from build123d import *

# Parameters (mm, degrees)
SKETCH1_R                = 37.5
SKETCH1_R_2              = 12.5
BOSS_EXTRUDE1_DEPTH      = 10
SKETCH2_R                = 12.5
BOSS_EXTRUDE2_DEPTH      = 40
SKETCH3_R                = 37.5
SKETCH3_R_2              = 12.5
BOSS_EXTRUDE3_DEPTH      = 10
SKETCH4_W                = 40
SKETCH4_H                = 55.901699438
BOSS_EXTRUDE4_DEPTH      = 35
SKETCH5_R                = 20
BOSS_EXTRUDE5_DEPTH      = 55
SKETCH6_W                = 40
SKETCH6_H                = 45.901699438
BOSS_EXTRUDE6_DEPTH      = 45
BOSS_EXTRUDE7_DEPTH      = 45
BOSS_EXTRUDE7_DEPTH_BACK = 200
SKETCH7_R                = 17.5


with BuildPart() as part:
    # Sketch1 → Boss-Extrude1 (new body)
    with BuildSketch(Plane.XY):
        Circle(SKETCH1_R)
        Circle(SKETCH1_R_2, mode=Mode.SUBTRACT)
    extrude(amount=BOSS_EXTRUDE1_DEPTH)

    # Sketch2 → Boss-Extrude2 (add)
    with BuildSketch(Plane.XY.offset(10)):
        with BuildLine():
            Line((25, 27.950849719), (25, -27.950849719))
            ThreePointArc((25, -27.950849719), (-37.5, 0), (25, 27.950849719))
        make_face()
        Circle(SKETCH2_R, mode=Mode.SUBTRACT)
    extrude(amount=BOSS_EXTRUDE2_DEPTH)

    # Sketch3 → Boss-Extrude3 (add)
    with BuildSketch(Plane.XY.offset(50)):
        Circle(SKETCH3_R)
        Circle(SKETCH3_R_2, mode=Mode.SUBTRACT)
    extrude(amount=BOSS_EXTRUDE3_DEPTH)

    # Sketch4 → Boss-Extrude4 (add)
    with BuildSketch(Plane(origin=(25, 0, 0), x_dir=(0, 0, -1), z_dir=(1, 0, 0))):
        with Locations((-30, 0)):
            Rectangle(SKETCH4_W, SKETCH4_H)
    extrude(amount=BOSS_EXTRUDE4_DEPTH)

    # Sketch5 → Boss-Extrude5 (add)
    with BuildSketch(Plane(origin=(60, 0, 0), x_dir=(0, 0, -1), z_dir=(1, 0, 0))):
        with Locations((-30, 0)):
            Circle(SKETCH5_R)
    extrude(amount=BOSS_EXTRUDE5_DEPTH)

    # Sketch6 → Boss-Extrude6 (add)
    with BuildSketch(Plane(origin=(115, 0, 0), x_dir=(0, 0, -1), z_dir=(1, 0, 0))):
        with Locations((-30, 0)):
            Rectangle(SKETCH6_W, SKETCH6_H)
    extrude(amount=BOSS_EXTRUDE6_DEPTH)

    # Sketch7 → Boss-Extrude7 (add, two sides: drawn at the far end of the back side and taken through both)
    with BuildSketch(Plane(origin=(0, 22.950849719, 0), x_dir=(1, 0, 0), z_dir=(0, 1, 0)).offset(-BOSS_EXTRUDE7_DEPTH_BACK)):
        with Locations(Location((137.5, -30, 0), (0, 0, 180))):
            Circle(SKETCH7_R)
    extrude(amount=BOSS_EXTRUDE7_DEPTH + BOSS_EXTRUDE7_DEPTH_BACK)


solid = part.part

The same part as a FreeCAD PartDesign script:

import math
import FreeCAD as App
import Part
import Sketcher
from FreeCAD import Vector
Q = App.Units.Quantity


def add_polygon(sketch, points):
    """Adds a closed chain of lines whose ends are joined by coincident constraints."""
    first, n = sketch.GeometryCount, len(points)
    for a, b in zip(points, points[1:] + points[:1]):
        sketch.addGeometry(Part.LineSegment(App.Vector(*a, 0), App.Vector(*b, 0)), False)
    for i in range(n):
        sketch.addConstraint(Sketcher.Constraint("Coincident", first + i, 2, first + (i + 1) % n, 1))

doc = App.newDocument("Part")
body = doc.addObject("PartDesign::Body", "Body")

sketch1 = doc.addObject("Sketcher::SketchObject", "Sketch")
body.addObject(sketch1)
sketch1.AttachmentSupport = (doc.XY_Plane, [""])
sketch1.MapMode = "FlatFace"
sketch1.addGeometry(Part.Circle(Vector(0, 0, 0), Vector(0, 0, 1), 37.5), False)
sketch1.addGeometry(Part.Circle(Vector(0, 0, 0), Vector(0, 0, 1), 12.5), False)
sketch1.addConstraint(Sketcher.Constraint("Coincident", 0, 3, -1, 1))
sketch1.addConstraint(Sketcher.Constraint("Coincident", 1, 3, -1, 1))
sketch1.addConstraint(Sketcher.Constraint("Diameter", 0, Q("75 mm")))
sketch1.addConstraint(Sketcher.Constraint("Diameter", 1, Q("25 mm")))
pad1 = doc.addObject("PartDesign::Pad", "Pad")
body.addObject(pad1)
pad1.Profile = sketch1
pad1.Length = 10

sketch2 = doc.addObject("Sketcher::SketchObject", "Sketch001")
body.addObject(sketch2)
sketch2.AttachmentSupport = (doc.XY_Plane, [""])
sketch2.MapMode = "FlatFace"
sketch2.AttachmentOffset = App.Placement(Vector(0, 0, 10), App.Rotation())
sketch2.addGeometry(Part.LineSegment(Vector(25, -27.95085, 0), Vector(25, 27.95085, 0)), False)
sketch2.addGeometry(Part.ArcOfCircle(Part.Circle(Vector(0, 0, 0), Vector(0, 0, 1), 37.5), math.radians(48.189685), math.radians(311.810315)), False)
sketch2.addGeometry(Part.Circle(Vector(0, 0, 0), Vector(0, 0, 1), 12.5), False)
sketch2.addConstraint(Sketcher.Constraint("Coincident", 0, 1, 1, 2))
sketch2.addConstraint(Sketcher.Constraint("Coincident", 1, 1, 0, 2))
sketch2.addConstraint(Sketcher.Constraint("Vertical", 0))
sketch2.addConstraint(Sketcher.Constraint("Coincident", 1, 3, -1, 1))
sketch2.addConstraint(Sketcher.Constraint("Coincident", 2, 3, -1, 1))
sketch2.addConstraint(Sketcher.Constraint("Diameter", 2, Q("25 mm")))
sketch2.addConstraint(Sketcher.Constraint("Radius", 1, Q("37.5 mm")))
sketch2.addConstraint(Sketcher.Constraint("DistanceX", -1, 1, 0, 1, Q("25 mm")))
pad2 = doc.addObject("PartDesign::Pad", "Pad001")
body.addObject(pad2)
pad2.Profile = sketch2
pad2.Length = 40

sketch3 = doc.addObject("Sketcher::SketchObject", "Sketch002")
body.addObject(sketch3)
sketch3.AttachmentSupport = (doc.XY_Plane, [""])
sketch3.MapMode = "FlatFace"
sketch3.AttachmentOffset = App.Placement(Vector(0, 0, 50), App.Rotation())
sketch3.addGeometry(Part.Circle(Vector(0, 0, 0), Vector(0, 0, 1), 37.5), False)
sketch3.addGeometry(Part.Circle(Vector(0, 0, 0), Vector(0, 0, 1), 12.5), False)
sketch3.addConstraint(Sketcher.Constraint("Coincident", 0, 3, -1, 1))
sketch3.addConstraint(Sketcher.Constraint("Coincident", 1, 3, -1, 1))
sketch3.addConstraint(Sketcher.Constraint("Diameter", 0, Q("75 mm")))
sketch3.addConstraint(Sketcher.Constraint("Diameter", 1, Q("25 mm")))
pad3 = doc.addObject("PartDesign::Pad", "Pad002")
body.addObject(pad3)
pad3.Profile = sketch3
pad3.Length = 10

sketch4 = doc.addObject("Sketcher::SketchObject", "Sketch003")
body.addObject(sketch4)
sketch4.AttachmentSupport = (doc.YZ_Plane, [""])
sketch4.MapMode = "FlatFace"
sketch4.AttachmentOffset = App.Placement(Vector(0, 0, 25), App.Rotation())
add_polygon(sketch4, [(27.95085, 50), (-27.95085, 50), (-27.95085, 10), (27.95085, 10)])
sketch4.addConstraint(Sketcher.Constraint("Horizontal", 0))
sketch4.addConstraint(Sketcher.Constraint("Vertical", 1))
sketch4.addConstraint(Sketcher.Constraint("Horizontal", 2))
sketch4.addConstraint(Sketcher.Constraint("Vertical", 3))
sketch4.addConstraint(Sketcher.Constraint("DistanceY", 1, 2, 1, 1, Q("40 mm")))
sketch4.addConstraint(Sketcher.Constraint("DistanceY", -1, 1, 0, 2, Q("50 mm")))
sketch4.addConstraint(Sketcher.Constraint("DistanceX", 0, 2, 0, 1, Q("55.901699 mm")))
sketch4.addConstraint(Sketcher.Constraint("DistanceX", 0, 2, -1, 1, Q("27.95085 mm")))
pad4 = doc.addObject("PartDesign::Pad", "Pad003")
body.addObject(pad4)
pad4.Profile = sketch4
pad4.Length = 35

sketch5 = doc.addObject("Sketcher::SketchObject", "Sketch004")
body.addObject(sketch5)
sketch5.AttachmentSupport = (doc.YZ_Plane, [""])
sketch5.MapMode = "FlatFace"
sketch5.AttachmentOffset = App.Placement(Vector(0, 0, 60), App.Rotation())
sketch5.addGeometry(Part.Circle(Vector(0, 30, 0), Vector(0, 0, 1), 20), False)
sketch5.addConstraint(Sketcher.Constraint("PointOnObject", 0, 3, -2))
sketch5.addConstraint(Sketcher.Constraint("Diameter", 0, Q("40 mm")))
sketch5.addConstraint(Sketcher.Constraint("DistanceY", -1, 1, 0, 3, Q("30 mm")))
pad5 = doc.addObject("PartDesign::Pad", "Pad004")
body.addObject(pad5)
pad5.Profile = sketch5
pad5.Length = 55

sketch6 = doc.addObject("Sketcher::SketchObject", "Sketch005")
body.addObject(sketch6)
sketch6.AttachmentSupport = (doc.YZ_Plane, [""])
sketch6.MapMode = "FlatFace"
sketch6.AttachmentOffset = App.Placement(Vector(0, 0, 115), App.Rotation())
add_polygon(sketch6, [(22.95085, 50), (-22.95085, 50), (-22.95085, 10), (22.95085, 10)])
sketch6.addConstraint(Sketcher.Constraint("Horizontal", 0))
sketch6.addConstraint(Sketcher.Constraint("Vertical", 1))
sketch6.addConstraint(Sketcher.Constraint("Horizontal", 2))
sketch6.addConstraint(Sketcher.Constraint("Vertical", 3))
sketch6.addConstraint(Sketcher.Constraint("DistanceY", 1, 2, 1, 1, Q("40 mm")))
sketch6.addConstraint(Sketcher.Constraint("DistanceY", -1, 1, 0, 2, Q("50 mm")))
sketch6.addConstraint(Sketcher.Constraint("DistanceX", 0, 2, 0, 1, Q("45.901699 mm")))
sketch6.addConstraint(Sketcher.Constraint("DistanceX", 0, 2, -1, 1, Q("22.95085 mm")))
pad6 = doc.addObject("PartDesign::Pad", "Pad005")
body.addObject(pad6)
pad6.Profile = sketch6
pad6.Length = 45

sketch7 = doc.addObject("Sketcher::SketchObject", "Sketch006")
body.addObject(sketch7)
sketch7.AttachmentSupport = (doc.XZ_Plane, [""])
sketch7.MapMode = "FlatFace"
sketch7.AttachmentOffset = App.Placement(Vector(0, 0, -22.95085), App.Rotation())
sketch7.addGeometry(Part.Circle(Vector(137.5, 30, 0), Vector(0, 0, 1), 17.5), False)
sketch7.addConstraint(Sketcher.Constraint("Diameter", 0, Q("35 mm")))
sketch7.addConstraint(Sketcher.Constraint("DistanceY", -1, 1, 0, 3, Q("30 mm")))
sketch7.addConstraint(Sketcher.Constraint("DistanceX", -1, 1, 0, 3, Q("137.5 mm")))
pad7 = doc.addObject("PartDesign::Pad", "Pad006")
body.addObject(pad7)
pad7.Profile = sketch7
pad7.Type = "TwoLengths"
pad7.Length = 45
pad7.Length2 = 200
pad7.Reversed = True

doc.recompute()
